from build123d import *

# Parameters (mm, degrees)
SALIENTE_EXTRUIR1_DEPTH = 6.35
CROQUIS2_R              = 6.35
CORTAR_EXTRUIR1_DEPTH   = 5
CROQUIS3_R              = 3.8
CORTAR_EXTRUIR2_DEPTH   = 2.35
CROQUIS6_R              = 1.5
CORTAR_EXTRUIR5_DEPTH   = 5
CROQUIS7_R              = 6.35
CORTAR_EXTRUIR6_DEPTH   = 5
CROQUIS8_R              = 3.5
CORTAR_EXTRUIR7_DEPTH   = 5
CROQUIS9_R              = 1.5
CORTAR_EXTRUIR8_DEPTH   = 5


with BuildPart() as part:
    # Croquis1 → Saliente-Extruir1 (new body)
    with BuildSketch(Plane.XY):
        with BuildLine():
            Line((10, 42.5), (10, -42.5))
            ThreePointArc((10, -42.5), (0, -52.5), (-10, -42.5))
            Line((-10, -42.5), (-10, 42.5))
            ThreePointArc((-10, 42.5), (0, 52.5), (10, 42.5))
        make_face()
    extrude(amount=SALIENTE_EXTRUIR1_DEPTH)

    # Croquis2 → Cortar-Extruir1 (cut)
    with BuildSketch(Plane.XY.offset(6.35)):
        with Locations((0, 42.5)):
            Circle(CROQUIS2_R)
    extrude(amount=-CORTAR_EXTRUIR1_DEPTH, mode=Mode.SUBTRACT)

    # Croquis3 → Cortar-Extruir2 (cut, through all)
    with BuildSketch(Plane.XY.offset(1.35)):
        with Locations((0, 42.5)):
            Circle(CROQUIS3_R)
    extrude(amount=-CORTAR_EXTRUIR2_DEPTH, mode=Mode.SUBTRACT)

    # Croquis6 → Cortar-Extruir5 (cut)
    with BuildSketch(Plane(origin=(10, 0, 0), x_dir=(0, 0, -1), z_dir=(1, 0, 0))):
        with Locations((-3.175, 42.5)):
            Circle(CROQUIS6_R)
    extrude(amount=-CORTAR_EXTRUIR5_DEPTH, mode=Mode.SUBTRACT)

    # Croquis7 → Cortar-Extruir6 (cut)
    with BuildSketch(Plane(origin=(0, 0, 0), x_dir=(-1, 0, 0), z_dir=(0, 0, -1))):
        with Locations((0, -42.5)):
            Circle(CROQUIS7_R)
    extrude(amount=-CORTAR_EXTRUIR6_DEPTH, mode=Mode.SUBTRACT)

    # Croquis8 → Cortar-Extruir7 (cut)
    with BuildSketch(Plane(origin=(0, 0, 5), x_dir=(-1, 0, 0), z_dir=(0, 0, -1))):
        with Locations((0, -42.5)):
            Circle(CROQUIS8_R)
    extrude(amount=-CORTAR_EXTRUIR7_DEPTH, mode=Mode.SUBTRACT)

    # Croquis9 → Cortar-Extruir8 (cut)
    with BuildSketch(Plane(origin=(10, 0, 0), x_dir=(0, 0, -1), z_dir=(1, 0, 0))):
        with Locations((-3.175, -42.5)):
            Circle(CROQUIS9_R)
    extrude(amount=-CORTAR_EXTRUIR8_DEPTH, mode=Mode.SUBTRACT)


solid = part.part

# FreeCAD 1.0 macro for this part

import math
import FreeCAD as App
import Part
import Sketcher

doc = App.newDocument("Part")
params = doc.addObject("Spreadsheet::Sheet", "Params")
for row, (alias, value) in enumerate([
    ("sketch1_radius", "10 mm"),
    ("sketch1_height", "85 mm"),
    ("pad1_length", "6.35 mm"),
    ("sketch2_diameter", "12.7 mm"),
    ("pocket1_length", "5 mm"),
    ("sketch3_diameter", "7.6 mm"),
    ("sketch4_diameter", "3 mm"),
    ("pocket3_length", "5 mm"),
    ("sketch5_diameter", "12.7 mm"),
    ("pocket4_length", "5 mm"),
    ("sketch6_diameter", "7 mm"),
    ("pocket5_length", "5 mm"),
    ("sketch7_diameter", "3 mm"),
    ("pocket6_length", "5 mm"),
], start=1):
    params.set(f"A{row}", alias)
    params.set(f"B{row}", "=" + value)
    params.setAlias(f"B{row}", alias)

body = doc.addObject("PartDesign::Body", "Body")

# Sketch on XY plane
sketch1 = body.newObject("Sketcher::SketchObject", "Sketch")
sketch1.AttachmentSupport = (doc.getObject("XY_Plane"), [""])
sketch1.MapMode = "FlatFace"
sketch1.addGeometry([
    Part.LineSegment(App.Vector(10, -42, 0), App.Vector(10, 42, 0)),
    Part.ArcOfCircle(Part.Circle(App.Vector(0, 42, 0), App.Vector(0, 0, 1), 10), math.radians(0), math.radians(180)),
    Part.LineSegment(App.Vector(-10, 42, 0), App.Vector(-10, -42, 0)),
    Part.ArcOfCircle(Part.Circle(App.Vector(0, -42, 0), App.Vector(0, 0, 1), 10), math.radians(180), math.radians(360)),
], False)
sketch1.addConstraint([
    Sketcher.Constraint("Tangent", 0, 2, 1, 1),
    Sketcher.Constraint("Tangent", 1, 2, 2, 1),
    Sketcher.Constraint("Tangent", 2, 2, 3, 1),
    Sketcher.Constraint("Tangent", 3, 2, 0, 1),
    Sketcher.Constraint("Vertical", 0),
    Sketcher.Constraint("Vertical", 2),
    Sketcher.Constraint("Symmetric", 1, 3, 3, 3, -1, 1),
    Sketcher.Constraint("Radius", 1, 10.0),
    Sketcher.Constraint("DistanceY", 0, 1, 0, 2, 85.0),
])
sketch1.setExpression("Constraints[7]", "Params.sketch1_radius")
sketch1.setExpression("Constraints[8]", "Params.sketch1_height")
pad1 = body.newObject("PartDesign::Pad", "Pad")
pad1.Profile = sketch1
pad1.setExpression("Length", "Params.pad1_length")

# Sketch on XY plane
sketch2 = body.newObject("Sketcher::SketchObject", "Sketch001")
sketch2.AttachmentSupport = (doc.getObject("XY_Plane"), [""])
sketch2.MapMode = "FlatFace"
sketch2.AttachmentOffset = App.Placement(App.Vector(0, 0, 6.35), App.Rotation())
sketch2.addGeometry(Part.Circle(App.Vector(0, 42, 0), App.Vector(0, 0, 1), 6), False)
sketch2.addConstraint([
    Sketcher.Constraint("PointOnObject", 0, 3, -2),
    Sketcher.Constraint("Diameter", 0, 12.7),
    Sketcher.Constraint("DistanceY", -1, 1, 0, 3, 42.5),
])
sketch2.setExpression("Constraints[1]", "Params.sketch2_diameter")
pocket1 = body.newObject("PartDesign::Pocket", "Pocket")
pocket1.Profile = sketch2
pocket1.setExpression("Length", "Params.pocket1_length")

# Sketch on XY plane
sketch3 = body.newObject("Sketcher::SketchObject", "Sketch002")
sketch3.AttachmentSupport = (doc.getObject("XY_Plane"), [""])
sketch3.MapMode = "FlatFace"
sketch3.AttachmentOffset = App.Placement(App.Vector(0, 0, 1.35), App.Rotation())
sketch3.addGeometry(Part.Circle(App.Vector(0, 42.5, 0), App.Vector(0, 0, 1), 3.8), False)
sketch3.addConstraint([
    Sketcher.Constraint("PointOnObject", 0, 3, -2),
    Sketcher.Constraint("Diameter", 0, 7.6),
    Sketcher.Constraint("DistanceY", -1, 1, 0, 3, 42.5),
])
sketch3.setExpression("Constraints[1]", "Params.sketch3_diameter")
pocket2 = body.newObject("PartDesign::Pocket", "Pocket001")
pocket2.Profile = sketch3
pocket2.Type = "ThroughAll"

# Sketch on YZ plane
sketch4 = body.newObject("Sketcher::SketchObject", "Sketch003")
sketch4.AttachmentSupport = (doc.getObject("YZ_Plane"), [""])
sketch4.MapMode = "FlatFace"
sketch4.AttachmentOffset = App.Placement(App.Vector(0, 0, 10), App.Rotation())
sketch4.addGeometry(Part.Circle(App.Vector(42.5, 3.2, 0), App.Vector(0, 0, 1), 1.5), False)
sketch4.addConstraint([
    Sketcher.Constraint("Diameter", 0, 3.0),
    Sketcher.Constraint("DistanceX", -1, 1, 0, 3, 42.5),
    Sketcher.Constraint("DistanceY", -1, 1, 0, 3, 3.175),
])
sketch4.setExpression("Constraints[0]", "Params.sketch4_diameter")
pocket3 = body.newObject("PartDesign::Pocket", "Pocket002")
pocket3.Profile = sketch4
pocket3.setExpression("Length", "Params.pocket3_length")

# Sketch on XY plane
sketch5 = body.newObject("Sketcher::SketchObject", "Sketch004")
sketch5.AttachmentSupport = (doc.getObject("XY_Plane"), [""])
sketch5.MapMode = "FlatFace"
sketch5.addGeometry(Part.Circle(App.Vector(0, -42, 0), App.Vector(0, 0, 1), 6), False)
sketch5.addConstraint([
    Sketcher.Constraint("PointOnObject", 0, 3, -2),
    Sketcher.Constraint("Diameter", 0, 12.7),
    Sketcher.Constraint("DistanceY", 0, 3, -1, 1, 42.5),
])
sketch5.setExpression("Constraints[1]", "Params.sketch5_diameter")
pocket4 = body.newObject("PartDesign::Pocket", "Pocket003")
pocket4.Profile = sketch5
pocket4.setExpression("Length", "Params.pocket4_length")
pocket4.Reversed = True

# Sketch on XY plane
sketch6 = body.newObject("Sketcher::SketchObject", "Sketch005")
sketch6.AttachmentSupport = (doc.getObject("XY_Plane"), [""])
sketch6.MapMode = "FlatFace"
sketch6.AttachmentOffset = App.Placement(App.Vector(0, 0, 5), App.Rotation())
sketch6.addGeometry(Part.Circle(App.Vector(0, -42.5, 0), App.Vector(0, 0, 1), 3.5), False)
sketch6.addConstraint([
    Sketcher.Constraint("PointOnObject", 0, 3, -2),
    Sketcher.Constraint("Diameter", 0, 7.0),
    Sketcher.Constraint("DistanceY", 0, 3, -1, 1, 42.5),
])
sketch6.setExpression("Constraints[1]", "Params.sketch6_diameter")
pocket5 = body.newObject("PartDesign::Pocket", "Pocket004")
pocket5.Profile = sketch6
pocket5.setExpression("Length", "Params.pocket5_length")
pocket5.Reversed = True

# Sketch on YZ plane
sketch7 = body.newObject("Sketcher::SketchObject", "Sketch006")
sketch7.AttachmentSupport = (doc.getObject("YZ_Plane"), [""])
sketch7.MapMode = "FlatFace"
sketch7.AttachmentOffset = App.Placement(App.Vector(0, 0, 10), App.Rotation())
sketch7.addGeometry(Part.Circle(App.Vector(-42.5, 3.2, 0), App.Vector(0, 0, 1), 1.5), False)
sketch7.addConstraint([
    Sketcher.Constraint("Diameter", 0, 3.0),
    Sketcher.Constraint("DistanceX", 0, 3, -1, 1, 42.5),
    Sketcher.Constraint("DistanceY", -1, 1, 0, 3, 3.175),
])
sketch7.setExpression("Constraints[0]", "Params.sketch7_diameter")
pocket6 = body.newObject("PartDesign::Pocket", "Pocket005")
pocket6.Profile = sketch7
pocket6.setExpression("Length", "Params.pocket6_length")

doc.recompute()
